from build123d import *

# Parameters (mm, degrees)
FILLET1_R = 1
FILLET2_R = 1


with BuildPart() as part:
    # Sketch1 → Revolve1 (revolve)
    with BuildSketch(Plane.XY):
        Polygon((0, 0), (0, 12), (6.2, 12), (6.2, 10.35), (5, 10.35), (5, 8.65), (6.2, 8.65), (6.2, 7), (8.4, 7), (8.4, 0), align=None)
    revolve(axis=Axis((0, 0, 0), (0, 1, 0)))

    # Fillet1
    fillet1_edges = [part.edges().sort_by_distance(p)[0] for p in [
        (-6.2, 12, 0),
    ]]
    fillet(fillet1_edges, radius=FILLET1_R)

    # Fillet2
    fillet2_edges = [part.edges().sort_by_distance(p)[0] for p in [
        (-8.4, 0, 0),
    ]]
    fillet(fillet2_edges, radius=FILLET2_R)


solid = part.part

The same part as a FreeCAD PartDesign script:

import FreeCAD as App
import Part
import Sketcher


def edges_at(feature, points):
    """Names of the edges that pass closest to the given points."""
    edges = feature.Shape.Edges
    near = lambda p: min(range(len(edges)), key=lambda i: edges[i].distToShape(Part.Vertex(*p))[0])
    return sorted({f"Edge{near(p) + 1}" for p in points})


def add_polygon(sketch, points):
    """Adds a closed chain of lines whose ends are joined by coincident constraints."""
    first, n = sketch.GeometryCount, len(points)
    for a, b in zip(points, points[1:] + points[:1]):
        sketch.addGeometry(Part.LineSegment(App.Vector(*a, 0), App.Vector(*b, 0)), False)
    for i in range(n):
        sketch.addConstraint(Sketcher.Constraint("Coincident", first + i, 2, first + (i + 1) % n, 1))

doc = App.newDocument("Part")
params = doc.addObject("Spreadsheet::Sheet", "Params")
for row, (alias, value) in enumerate([
    ("sketch1_height", "12 mm"),
    ("sketch1_height2", "7 mm"),
    ("sketch1_width", "8.4 mm"),
    ("sketch1_width2", "2.2 mm"),
    ("sketch1_width3", "1.2 mm"),
    ("revolution_angle", "360 deg"),
    ("fillet_radius", "1 mm"),
    ("fillet2_radius", "1 mm"),
], start=1):
    params.set(f"A{row}", alias)
    params.set(f"B{row}", "=" + value)
    params.setAlias(f"B{row}", alias)

body = doc.addObject("PartDesign::Body", "Body")

# Sketch on XY plane
sketch1 = body.newObject("Sketcher::SketchObject", "Sketch")
sketch1.AttachmentSupport = (doc.getObject("XY_Plane"), [""])
sketch1.MapMode = "FlatFace"
add_polygon(sketch1, [(0, 12), (0, 0), (8.4, 0), (8.4, 7), (6.2, 7), (6.2, 8.7), (5, 8.7), (5, 10.3), (6.2, 10.3), (6.2, 12)])  # lines 0-9
sketch1.addConstraint(Sketcher.Constraint("Vertical", 0))
sketch1.addConstraint(Sketcher.Constraint("Horizontal", 1))
sketch1.addConstraint(Sketcher.Constraint("Vertical", 2))
sketch1.addConstraint(Sketcher.Constraint("Horizontal", 3))
sketch1.addConstraint(Sketcher.Constraint("Vertical", 4))
sketch1.addConstraint(Sketcher.Constraint("Horizontal", 5))
sketch1.addConstraint(Sketcher.Constraint("Vertical", 6))
sketch1.addConstraint(Sketcher.Constraint("Horizontal", 7))
sketch1.addConstraint(Sketcher.Constraint("Vertical", 8))
sketch1.addConstraint(Sketcher.Constraint("Horizontal", 9))
sketch1.addConstraint(Sketcher.Constraint("Coincident", 0, 2, -1, 1))
sketch1.addConstraint(Sketcher.Constraint("Vertical", 4, 2, 7, 2))
sketch1.addConstraint(Sketcher.Constraint("Equal", 4, 8))
sketch1.addConstraint(Sketcher.Constraint("DistanceY", 0, 2, 0, 1, 12.0))
sketch1.addConstraint(Sketcher.Constraint("DistanceY", 2, 1, 2, 2, 7.0))
sketch1.addConstraint(Sketcher.Constraint("DistanceX", 1, 1, 1, 2, 8.4))
sketch1.addConstraint(Sketcher.Constraint("DistanceX", 3, 2, 3, 1, 2.2))
sketch1.addConstraint(Sketcher.Constraint("DistanceX", 5, 2, 5, 1, 1.2))
sketch1.addConstraint(Sketcher.Constraint("DistanceY", 6, 1, 6, 2, 1.7))
sketch1.setExpression("Constraints[23]", "Params.sketch1_height")
sketch1.setExpression("Constraints[24]", "Params.sketch1_height2")
sketch1.setExpression("Constraints[25]", "Params.sketch1_width")
sketch1.setExpression("Constraints[26]", "Params.sketch1_width2")
sketch1.setExpression("Constraints[27]", "Params.sketch1_width3")
revolution = body.newObject("PartDesign::Revolution", "Revolution")
revolution.Profile = sketch1
revolution.ReferenceAxis = (sketch1, ["V_Axis"])
revolution.setExpression("Angle", "Params.revolution_angle")
doc.recompute()

fillet = body.newObject("PartDesign::Fillet", "Fillet")
fillet.Base = (revolution, edges_at(revolution, [(-6.2, 12, 0)]))
fillet.setExpression("Radius", "Params.fillet_radius")
doc.recompute()

fillet2 = body.newObject("PartDesign::Fillet", "Fillet001")
fillet2.Base = (fillet, edges_at(fillet, [(-8.4, 0, 0)]))
fillet2.setExpression("Radius", "Params.fillet2_radius")

doc.recompute()
